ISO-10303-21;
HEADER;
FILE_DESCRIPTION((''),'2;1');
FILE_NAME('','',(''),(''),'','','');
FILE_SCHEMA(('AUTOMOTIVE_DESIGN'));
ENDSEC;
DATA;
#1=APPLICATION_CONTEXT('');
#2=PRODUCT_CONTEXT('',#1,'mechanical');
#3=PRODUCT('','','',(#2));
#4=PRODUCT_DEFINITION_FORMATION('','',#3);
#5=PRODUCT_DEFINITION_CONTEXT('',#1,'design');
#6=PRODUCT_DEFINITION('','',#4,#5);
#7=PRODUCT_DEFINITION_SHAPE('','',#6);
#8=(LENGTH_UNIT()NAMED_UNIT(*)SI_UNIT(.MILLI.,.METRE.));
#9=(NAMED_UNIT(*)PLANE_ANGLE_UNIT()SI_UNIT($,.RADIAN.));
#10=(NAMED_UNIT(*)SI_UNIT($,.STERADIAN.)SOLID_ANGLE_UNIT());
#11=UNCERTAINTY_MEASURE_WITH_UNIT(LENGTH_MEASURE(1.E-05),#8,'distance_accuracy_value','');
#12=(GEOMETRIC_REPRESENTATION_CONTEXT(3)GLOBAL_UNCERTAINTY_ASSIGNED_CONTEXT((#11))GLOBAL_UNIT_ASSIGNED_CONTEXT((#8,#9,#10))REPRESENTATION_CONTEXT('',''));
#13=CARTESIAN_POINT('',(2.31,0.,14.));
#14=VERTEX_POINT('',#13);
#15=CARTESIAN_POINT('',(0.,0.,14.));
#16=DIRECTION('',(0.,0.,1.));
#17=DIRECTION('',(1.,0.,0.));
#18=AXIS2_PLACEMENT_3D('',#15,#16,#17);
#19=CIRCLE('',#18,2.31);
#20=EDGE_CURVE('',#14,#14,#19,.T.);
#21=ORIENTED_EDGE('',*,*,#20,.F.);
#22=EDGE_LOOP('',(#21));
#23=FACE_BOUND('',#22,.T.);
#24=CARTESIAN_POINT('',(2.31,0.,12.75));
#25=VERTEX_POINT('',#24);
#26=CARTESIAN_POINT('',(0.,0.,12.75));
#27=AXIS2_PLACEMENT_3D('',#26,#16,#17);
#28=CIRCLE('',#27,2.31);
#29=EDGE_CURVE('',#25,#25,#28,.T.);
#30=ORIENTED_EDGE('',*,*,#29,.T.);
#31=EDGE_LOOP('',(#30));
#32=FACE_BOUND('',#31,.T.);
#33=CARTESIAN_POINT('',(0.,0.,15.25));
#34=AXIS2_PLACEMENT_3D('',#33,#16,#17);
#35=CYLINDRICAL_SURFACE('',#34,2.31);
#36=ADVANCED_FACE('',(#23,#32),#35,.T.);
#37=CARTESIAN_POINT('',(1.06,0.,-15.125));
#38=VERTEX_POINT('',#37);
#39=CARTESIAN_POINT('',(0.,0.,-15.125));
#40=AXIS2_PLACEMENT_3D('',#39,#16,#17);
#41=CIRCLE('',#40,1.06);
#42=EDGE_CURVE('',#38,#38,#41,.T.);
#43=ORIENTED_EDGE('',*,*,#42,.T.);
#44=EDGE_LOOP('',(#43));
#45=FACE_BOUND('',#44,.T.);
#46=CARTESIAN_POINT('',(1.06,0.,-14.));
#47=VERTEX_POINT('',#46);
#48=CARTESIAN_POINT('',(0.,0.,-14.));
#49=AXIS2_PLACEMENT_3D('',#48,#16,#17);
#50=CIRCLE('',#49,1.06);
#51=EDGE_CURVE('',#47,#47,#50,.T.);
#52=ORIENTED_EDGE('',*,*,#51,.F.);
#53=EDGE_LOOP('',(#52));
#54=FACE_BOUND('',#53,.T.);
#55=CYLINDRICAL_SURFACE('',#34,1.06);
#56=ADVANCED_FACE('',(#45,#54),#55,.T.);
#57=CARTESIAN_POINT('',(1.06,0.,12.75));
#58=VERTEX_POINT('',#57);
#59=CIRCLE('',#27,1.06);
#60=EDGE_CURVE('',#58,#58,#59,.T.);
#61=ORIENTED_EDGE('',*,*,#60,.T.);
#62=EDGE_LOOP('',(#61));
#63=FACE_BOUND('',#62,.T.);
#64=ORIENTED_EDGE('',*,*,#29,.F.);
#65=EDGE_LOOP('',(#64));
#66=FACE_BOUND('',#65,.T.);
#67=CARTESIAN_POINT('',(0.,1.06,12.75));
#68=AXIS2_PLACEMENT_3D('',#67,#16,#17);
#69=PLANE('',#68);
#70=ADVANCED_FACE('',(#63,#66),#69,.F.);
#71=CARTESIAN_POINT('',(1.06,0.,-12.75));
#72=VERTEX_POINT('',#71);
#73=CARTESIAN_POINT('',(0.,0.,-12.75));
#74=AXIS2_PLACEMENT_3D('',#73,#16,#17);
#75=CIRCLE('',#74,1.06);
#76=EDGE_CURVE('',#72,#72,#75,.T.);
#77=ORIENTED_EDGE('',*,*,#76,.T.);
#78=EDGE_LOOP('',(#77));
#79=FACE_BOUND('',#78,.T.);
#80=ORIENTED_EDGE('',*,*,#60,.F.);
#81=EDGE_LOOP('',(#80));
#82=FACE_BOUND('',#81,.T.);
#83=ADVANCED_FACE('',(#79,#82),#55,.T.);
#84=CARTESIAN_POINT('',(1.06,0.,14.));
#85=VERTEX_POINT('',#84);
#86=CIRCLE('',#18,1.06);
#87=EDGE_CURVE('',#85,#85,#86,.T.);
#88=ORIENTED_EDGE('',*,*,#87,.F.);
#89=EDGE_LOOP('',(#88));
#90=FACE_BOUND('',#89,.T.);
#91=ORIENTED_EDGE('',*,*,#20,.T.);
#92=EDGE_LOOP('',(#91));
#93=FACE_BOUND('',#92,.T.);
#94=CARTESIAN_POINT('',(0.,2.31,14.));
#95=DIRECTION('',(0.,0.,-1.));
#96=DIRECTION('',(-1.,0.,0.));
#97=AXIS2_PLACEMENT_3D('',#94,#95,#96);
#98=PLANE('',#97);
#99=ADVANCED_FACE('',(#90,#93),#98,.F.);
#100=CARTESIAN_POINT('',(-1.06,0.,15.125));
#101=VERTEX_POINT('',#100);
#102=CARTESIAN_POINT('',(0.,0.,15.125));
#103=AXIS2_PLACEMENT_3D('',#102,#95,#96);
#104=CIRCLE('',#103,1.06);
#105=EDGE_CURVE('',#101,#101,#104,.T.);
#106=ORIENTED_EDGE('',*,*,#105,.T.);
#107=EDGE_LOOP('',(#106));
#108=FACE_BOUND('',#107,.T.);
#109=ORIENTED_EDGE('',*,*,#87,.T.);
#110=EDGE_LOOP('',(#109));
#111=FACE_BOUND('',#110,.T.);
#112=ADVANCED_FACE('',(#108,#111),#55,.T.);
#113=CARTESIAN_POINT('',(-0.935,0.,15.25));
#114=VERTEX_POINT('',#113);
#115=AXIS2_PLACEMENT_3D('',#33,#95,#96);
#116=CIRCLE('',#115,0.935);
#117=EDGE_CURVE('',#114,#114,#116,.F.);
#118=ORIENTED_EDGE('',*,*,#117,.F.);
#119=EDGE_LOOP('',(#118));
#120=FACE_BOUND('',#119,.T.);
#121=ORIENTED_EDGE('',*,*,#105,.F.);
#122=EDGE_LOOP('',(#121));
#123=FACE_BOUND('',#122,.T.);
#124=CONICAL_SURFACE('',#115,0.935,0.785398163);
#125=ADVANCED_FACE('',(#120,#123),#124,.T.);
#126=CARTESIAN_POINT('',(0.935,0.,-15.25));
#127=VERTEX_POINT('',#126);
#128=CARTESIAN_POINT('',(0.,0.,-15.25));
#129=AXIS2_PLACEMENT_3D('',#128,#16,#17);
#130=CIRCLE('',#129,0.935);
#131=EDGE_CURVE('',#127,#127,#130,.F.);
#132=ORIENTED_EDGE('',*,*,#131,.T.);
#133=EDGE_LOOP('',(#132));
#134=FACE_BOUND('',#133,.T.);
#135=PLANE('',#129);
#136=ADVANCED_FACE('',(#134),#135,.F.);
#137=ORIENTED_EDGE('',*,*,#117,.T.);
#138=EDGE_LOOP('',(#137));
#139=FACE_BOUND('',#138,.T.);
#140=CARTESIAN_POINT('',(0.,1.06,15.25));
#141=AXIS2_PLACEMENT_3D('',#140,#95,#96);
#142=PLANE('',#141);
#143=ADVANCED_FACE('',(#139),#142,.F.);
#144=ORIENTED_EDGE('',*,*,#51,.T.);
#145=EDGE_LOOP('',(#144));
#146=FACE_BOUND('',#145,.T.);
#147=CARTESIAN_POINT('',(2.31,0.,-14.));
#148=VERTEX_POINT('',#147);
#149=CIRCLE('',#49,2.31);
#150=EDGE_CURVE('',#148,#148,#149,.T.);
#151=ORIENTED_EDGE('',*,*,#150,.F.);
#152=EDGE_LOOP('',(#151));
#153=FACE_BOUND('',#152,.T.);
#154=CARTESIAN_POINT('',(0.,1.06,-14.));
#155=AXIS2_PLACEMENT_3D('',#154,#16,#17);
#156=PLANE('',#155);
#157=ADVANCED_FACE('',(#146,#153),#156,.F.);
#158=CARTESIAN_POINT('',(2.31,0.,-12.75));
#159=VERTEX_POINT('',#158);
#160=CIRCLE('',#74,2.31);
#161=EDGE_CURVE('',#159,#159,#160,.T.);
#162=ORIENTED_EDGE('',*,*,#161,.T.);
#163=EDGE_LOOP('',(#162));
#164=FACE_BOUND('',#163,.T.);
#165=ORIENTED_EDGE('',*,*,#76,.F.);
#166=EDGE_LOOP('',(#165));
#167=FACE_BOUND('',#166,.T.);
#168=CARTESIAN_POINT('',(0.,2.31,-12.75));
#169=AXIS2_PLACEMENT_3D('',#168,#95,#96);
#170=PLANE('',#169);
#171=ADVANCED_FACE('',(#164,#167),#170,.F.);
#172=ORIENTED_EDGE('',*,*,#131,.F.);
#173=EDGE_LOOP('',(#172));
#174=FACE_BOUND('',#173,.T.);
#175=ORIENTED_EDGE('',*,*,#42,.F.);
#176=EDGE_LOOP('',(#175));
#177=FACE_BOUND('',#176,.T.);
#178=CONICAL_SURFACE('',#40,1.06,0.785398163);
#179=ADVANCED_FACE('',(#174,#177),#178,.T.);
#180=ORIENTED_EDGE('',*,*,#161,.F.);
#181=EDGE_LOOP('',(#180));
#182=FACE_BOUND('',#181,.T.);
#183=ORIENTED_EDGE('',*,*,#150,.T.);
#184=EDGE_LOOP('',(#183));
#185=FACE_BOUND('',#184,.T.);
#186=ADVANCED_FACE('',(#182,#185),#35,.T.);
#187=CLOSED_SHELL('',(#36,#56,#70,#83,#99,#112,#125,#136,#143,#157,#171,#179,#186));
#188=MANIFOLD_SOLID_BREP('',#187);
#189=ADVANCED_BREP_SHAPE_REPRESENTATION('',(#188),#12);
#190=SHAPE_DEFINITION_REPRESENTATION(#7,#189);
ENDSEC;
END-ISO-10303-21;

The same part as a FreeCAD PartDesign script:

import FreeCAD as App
import Part
import Sketcher


def edges_at(feature, points):
    """Names of the edges that pass closest to the given points."""
    edges = feature.Shape.Edges
    near = lambda p: min(range(len(edges)), key=lambda i: edges[i].distToShape(Part.Vertex(*p))[0])
    return sorted({f"Edge{near(p) + 1}" for p in points})


def add_polygon(sketch, points):
    """Adds a closed chain of lines whose ends are joined by coincident constraints."""
    first, n = sketch.GeometryCount, len(points)
    for a, b in zip(points, points[1:] + points[:1]):
        sketch.addGeometry(Part.LineSegment(App.Vector(*a, 0), App.Vector(*b, 0)), False)
    for i in range(n):
        sketch.addConstraint(Sketcher.Constraint("Coincident", first + i, 2, first + (i + 1) % n, 1))

doc = App.newDocument("Part")
params = doc.addObject("Spreadsheet::Sheet", "Params")
for row, (alias, value) in enumerate([
    ("sketch1_height", "30.5 mm"),
    ("sketch1_height2", "25.5 mm"),
    ("sketch1_width", "1.06 mm"),
    ("revolution_angle", "360 deg"),
    ("chamfer_size", "0.125 mm"),
], start=1):
    params.set(f"A{row}", alias)
    params.set(f"B{row}", "=" + value)
    params.setAlias(f"B{row}", alias)

body = doc.addObject("PartDesign::Body", "Body")

# Sketch on YZ plane
sketch1 = doc.addObject("Sketcher::SketchObject", "Sketch")
body.addObject(sketch1)
sketch1.AttachmentSupport = (doc.YZ_Plane, [""])
sketch1.MapMode = "FlatFace"
add_polygon(sketch1, [(0, 15.2), (0, -15.2), (1.1, -15.2), (1.1, -14), (2.3, -14), (2.3, -12.8), (1.1, -12.8), (1.1, 12.8), (2.3, 12.8), (2.3, 14), (1.1, 14), (1.1, 15.2)])  # lines 0-11
sketch1.addConstraint(Sketcher.Constraint("Vertical", 0))
sketch1.addConstraint(Sketcher.Constraint("Horizontal", 1))
sketch1.addConstraint(Sketcher.Constraint("Vertical", 2))
sketch1.addConstraint(Sketcher.Constraint("Horizontal", 3))
sketch1.addConstraint(Sketcher.Constraint("Vertical", 4))
sketch1.addConstraint(Sketcher.Constraint("Horizontal", 5))
sketch1.addConstraint(Sketcher.Constraint("Vertical", 6))
sketch1.addConstraint(Sketcher.Constraint("Horizontal", 7))
sketch1.addConstraint(Sketcher.Constraint("Vertical", 8))
sketch1.addConstraint(Sketcher.Constraint("Horizontal", 9))
sketch1.addConstraint(Sketcher.Constraint("Vertical", 10))
sketch1.addConstraint(Sketcher.Constraint("Horizontal", 11))
sketch1.addConstraint(Sketcher.Constraint("Symmetric", 0, 2, 11, 2, -1, 1))
sketch1.addConstraint(Sketcher.Constraint("Symmetric", 4, 2, 7, 2, -1))
sketch1.addConstraint(Sketcher.Constraint("Symmetric", 2, 2, 9, 2, -1))
sketch1.addConstraint(Sketcher.Constraint("Vertical", 2, 2, 5, 2))
sketch1.addConstraint(Sketcher.Constraint("Equal", 9, 2))
sketch1.addConstraint(Sketcher.Constraint("Equal", 2, 4))
sketch1.addConstraint(Sketcher.Constraint("DistanceY", 0, 2, 0, 1, 30.5))
sketch1.addConstraint(Sketcher.Constraint("DistanceY", 6, 1, 6, 2, 25.5))
sketch1.addConstraint(Sketcher.Constraint("DistanceX", 1, 1, 1, 2, 1.06))
sketch1.setExpression("Constraints[30]", "Params.sketch1_height")
sketch1.setExpression("Constraints[31]", "Params.sketch1_height2")
sketch1.setExpression("Constraints[32]", "Params.sketch1_width")
revolution = doc.addObject("PartDesign::Revolution", "Revolution")
body.addObject(revolution)
revolution.Profile = sketch1
revolution.ReferenceAxis = (sketch1, ["V_Axis"])
revolution.setExpression("Angle", "Params.revolution_angle")
doc.recompute()

chamfer = doc.addObject("PartDesign::Chamfer", "Chamfer")
body.addObject(chamfer)
chamfer.Base = (revolution, edges_at(revolution, [(-1.06, 0, -15.25), (-1.06, 0, 15.25)]))
chamfer.setExpression("Size", "Params.chamfer_size")

doc.recompute()
